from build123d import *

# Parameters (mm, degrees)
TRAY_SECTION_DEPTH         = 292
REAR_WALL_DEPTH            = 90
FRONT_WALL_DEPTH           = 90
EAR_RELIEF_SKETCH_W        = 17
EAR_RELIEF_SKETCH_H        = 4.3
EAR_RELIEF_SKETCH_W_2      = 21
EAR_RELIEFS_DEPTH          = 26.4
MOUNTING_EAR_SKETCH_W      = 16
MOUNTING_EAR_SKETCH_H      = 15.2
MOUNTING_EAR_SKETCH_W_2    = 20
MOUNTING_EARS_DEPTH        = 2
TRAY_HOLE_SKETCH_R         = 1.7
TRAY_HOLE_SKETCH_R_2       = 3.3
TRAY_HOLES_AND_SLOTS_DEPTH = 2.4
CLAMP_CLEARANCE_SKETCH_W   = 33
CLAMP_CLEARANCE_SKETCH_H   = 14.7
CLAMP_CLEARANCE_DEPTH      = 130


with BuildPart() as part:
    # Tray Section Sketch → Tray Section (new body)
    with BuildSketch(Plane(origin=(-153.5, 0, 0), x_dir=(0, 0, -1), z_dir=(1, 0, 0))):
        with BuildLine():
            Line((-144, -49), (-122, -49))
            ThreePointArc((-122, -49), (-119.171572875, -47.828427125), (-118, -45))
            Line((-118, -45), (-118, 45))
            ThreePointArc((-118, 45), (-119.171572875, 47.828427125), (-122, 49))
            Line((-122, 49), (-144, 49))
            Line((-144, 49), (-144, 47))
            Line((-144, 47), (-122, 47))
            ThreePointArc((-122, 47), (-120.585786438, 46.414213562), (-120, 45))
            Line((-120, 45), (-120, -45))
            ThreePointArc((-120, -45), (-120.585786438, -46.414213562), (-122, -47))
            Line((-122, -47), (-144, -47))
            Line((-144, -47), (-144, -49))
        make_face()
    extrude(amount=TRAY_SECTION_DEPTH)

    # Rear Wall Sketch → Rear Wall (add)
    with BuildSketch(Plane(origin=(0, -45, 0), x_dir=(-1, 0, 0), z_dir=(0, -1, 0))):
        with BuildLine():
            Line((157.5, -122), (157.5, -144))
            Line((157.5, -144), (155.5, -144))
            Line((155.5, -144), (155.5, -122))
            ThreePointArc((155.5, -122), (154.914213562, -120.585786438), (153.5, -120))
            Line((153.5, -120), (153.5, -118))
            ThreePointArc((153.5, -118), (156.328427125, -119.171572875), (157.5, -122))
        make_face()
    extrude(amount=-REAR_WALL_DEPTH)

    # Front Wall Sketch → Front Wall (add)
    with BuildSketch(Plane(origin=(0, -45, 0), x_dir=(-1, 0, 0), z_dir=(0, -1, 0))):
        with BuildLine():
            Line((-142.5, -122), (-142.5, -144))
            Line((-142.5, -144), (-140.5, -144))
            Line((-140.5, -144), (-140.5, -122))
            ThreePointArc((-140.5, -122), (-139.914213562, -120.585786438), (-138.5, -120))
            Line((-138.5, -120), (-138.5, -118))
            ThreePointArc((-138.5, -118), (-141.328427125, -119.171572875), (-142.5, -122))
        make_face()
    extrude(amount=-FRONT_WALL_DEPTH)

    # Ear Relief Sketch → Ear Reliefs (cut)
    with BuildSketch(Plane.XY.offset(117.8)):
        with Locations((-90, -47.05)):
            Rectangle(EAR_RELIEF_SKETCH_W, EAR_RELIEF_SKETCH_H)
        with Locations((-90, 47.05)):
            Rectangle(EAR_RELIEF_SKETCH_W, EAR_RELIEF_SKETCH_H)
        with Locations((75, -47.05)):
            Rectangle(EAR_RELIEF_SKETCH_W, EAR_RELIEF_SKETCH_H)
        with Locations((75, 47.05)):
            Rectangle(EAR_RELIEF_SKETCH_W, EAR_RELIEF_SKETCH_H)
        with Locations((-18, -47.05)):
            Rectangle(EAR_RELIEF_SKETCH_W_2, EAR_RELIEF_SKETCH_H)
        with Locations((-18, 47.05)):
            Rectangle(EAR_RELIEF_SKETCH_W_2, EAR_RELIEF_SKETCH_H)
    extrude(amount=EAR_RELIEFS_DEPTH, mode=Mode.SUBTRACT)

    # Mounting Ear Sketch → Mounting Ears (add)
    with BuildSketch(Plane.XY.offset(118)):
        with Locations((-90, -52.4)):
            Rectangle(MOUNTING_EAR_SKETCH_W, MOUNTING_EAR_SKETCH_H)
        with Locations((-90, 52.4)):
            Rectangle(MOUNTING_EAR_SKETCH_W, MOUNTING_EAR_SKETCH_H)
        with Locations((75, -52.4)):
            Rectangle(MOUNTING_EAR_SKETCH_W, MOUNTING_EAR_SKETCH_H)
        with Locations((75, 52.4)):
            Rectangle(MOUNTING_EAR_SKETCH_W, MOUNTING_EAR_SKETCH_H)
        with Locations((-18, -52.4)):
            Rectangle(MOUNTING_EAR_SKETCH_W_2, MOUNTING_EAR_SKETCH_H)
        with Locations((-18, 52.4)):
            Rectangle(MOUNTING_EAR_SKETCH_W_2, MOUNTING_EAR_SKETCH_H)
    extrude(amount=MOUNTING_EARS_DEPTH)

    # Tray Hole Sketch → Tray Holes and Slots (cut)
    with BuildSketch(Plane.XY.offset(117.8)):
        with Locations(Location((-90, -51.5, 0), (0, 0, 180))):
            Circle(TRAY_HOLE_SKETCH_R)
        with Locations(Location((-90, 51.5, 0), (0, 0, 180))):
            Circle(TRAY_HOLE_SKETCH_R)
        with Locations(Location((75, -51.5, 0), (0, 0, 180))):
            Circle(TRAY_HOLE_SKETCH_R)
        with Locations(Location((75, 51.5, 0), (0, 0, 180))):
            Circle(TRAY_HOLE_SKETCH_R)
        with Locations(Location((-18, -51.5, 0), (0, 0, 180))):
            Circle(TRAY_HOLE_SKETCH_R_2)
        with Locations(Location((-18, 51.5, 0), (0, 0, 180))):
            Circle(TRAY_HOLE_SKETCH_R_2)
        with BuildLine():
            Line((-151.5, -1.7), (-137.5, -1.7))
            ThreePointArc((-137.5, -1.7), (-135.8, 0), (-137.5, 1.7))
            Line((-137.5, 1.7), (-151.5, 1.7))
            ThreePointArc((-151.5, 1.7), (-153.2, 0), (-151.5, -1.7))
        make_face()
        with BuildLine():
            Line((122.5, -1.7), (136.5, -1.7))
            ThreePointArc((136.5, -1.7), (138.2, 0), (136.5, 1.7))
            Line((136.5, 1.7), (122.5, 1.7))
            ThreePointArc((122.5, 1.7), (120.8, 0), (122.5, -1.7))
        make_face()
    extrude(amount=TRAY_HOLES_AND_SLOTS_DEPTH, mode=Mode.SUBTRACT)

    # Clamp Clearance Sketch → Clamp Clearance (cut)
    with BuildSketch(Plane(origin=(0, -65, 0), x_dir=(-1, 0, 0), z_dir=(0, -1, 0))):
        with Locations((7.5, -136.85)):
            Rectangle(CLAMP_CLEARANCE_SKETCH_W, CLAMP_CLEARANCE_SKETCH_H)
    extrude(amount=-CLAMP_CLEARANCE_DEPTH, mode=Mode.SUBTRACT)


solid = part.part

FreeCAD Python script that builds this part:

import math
import FreeCAD as App
import Part
import Sketcher
from FreeCAD import Vector

doc = App.newDocument("Part")
body = doc.addObject("PartDesign::Body", "Body")

sketch1 = body.newObject("Sketcher::SketchObject", "Sketch")
sketch1.AttachmentSupport = (doc.getObject("YZ_Plane"), [""])
sketch1.MapMode = "FlatFace"
sketch1.AttachmentOffset = App.Placement(Vector(0, 0, -153.5), App.Rotation())
sketch1.addGeometry(Part.LineSegment(Vector(-49, 144, 0), Vector(-49, 122, 0)), False)
sketch1.addGeometry(Part.ArcOfCircle(Part.Circle(Vector(-45, 122, 0), Vector(0, 0, 1), 4), math.radians(180), math.radians(270)), False)
sketch1.addGeometry(Part.LineSegment(Vector(-45, 118, 0), Vector(45, 118, 0)), False)
sketch1.addGeometry(Part.ArcOfCircle(Part.Circle(Vector(45, 122, 0), Vector(0, 0, 1), 4), math.radians(-90), math.radians(0)), False)
sketch1.addGeometry(Part.LineSegment(Vector(49, 122, 0), Vector(49, 144, 0)), False)
sketch1.addGeometry(Part.LineSegment(Vector(49, 144, 0), Vector(47, 144, 0)), False)
sketch1.addGeometry(Part.LineSegment(Vector(47, 144, 0), Vector(47, 122, 0)), False)
sketch1.addGeometry(Part.ArcOfCircle(Part.Circle(Vector(45, 122, 0), Vector(0, 0, 1), 2), math.radians(-90), math.radians(0)), False)
sketch1.addGeometry(Part.LineSegment(Vector(45, 120, 0), Vector(-45, 120, 0)), False)
sketch1.addGeometry(Part.ArcOfCircle(Part.Circle(Vector(-45, 122, 0), Vector(0, 0, 1), 2), math.radians(-180), math.radians(-90)), False)
sketch1.addGeometry(Part.LineSegment(Vector(-47, 122, 0), Vector(-47, 144, 0)), False)
sketch1.addGeometry(Part.LineSegment(Vector(-47, 144, 0), Vector(-49, 144, 0)), False)
sketch1.addConstraint(Sketcher.Constraint("Tangent", 0, 2, 1, 1))
sketch1.addConstraint(Sketcher.Constraint("Tangent", 1, 2, 2, 1))
sketch1.addConstraint(Sketcher.Constraint("Tangent", 2, 2, 3, 1))
sketch1.addConstraint(Sketcher.Constraint("Tangent", 3, 2, 4, 1))
sketch1.addConstraint(Sketcher.Constraint("Coincident", 4, 2, 5, 1))
sketch1.addConstraint(Sketcher.Constraint("Coincident", 5, 2, 6, 1))
sketch1.addConstraint(Sketcher.Constraint("Tangent", 6, 2, 7, 2))
sketch1.addConstraint(Sketcher.Constraint("Tangent", 7, 1, 8, 1))
sketch1.addConstraint(Sketcher.Constraint("Tangent", 8, 2, 9, 2))
sketch1.addConstraint(Sketcher.Constraint("Tangent", 9, 1, 10, 1))
sketch1.addConstraint(Sketcher.Constraint("Coincident", 10, 2, 11, 1))
sketch1.addConstraint(Sketcher.Constraint("Coincident", 11, 2, 0, 1))
sketch1.addConstraint(Sketcher.Constraint("Vertical", 0))
sketch1.addConstraint(Sketcher.Constraint("Horizontal", 2))
sketch1.addConstraint(Sketcher.Constraint("Vertical", 4))
sketch1.addConstraint(Sketcher.Constraint("Horizontal", 5))
sketch1.addConstraint(Sketcher.Constraint("Vertical", 6))
sketch1.addConstraint(Sketcher.Constraint("Horizontal", 8))
sketch1.addConstraint(Sketcher.Constraint("Vertical", 10))
sketch1.addConstraint(Sketcher.Constraint("Horizontal", 11))
sketch1.addConstraint(Sketcher.Constraint("Coincident", 7, 3, 3, 3))
sketch1.addConstraint(Sketcher.Constraint("Coincident", 9, 3, 1, 3))
sketch1.addConstraint(Sketcher.Constraint("Equal", 1, 3))
sketch1.addConstraint(Sketcher.Constraint("Symmetric", 5, 2, 10, 2, -2))
sketch1.addConstraint(Sketcher.Constraint("Radius", 1, 4.0))
sketch1.addConstraint(Sketcher.Constraint("Radius", 7, 2.0))
sketch1.addConstraint(Sketcher.Constraint("DistanceX", 2, 1, 2, 2, 90.0))
sketch1.addConstraint(Sketcher.Constraint("DistanceY", 0, 2, 0, 1, 22.0))
sketch1.addConstraint(Sketcher.Constraint("DistanceY", -1, 1, 1, 3, 122.0))
pad1 = body.newObject("PartDesign::Pad", "Pad")
pad1.Profile = sketch1
pad1.Length = 292

sketch2 = body.newObject("Sketcher::SketchObject", "Sketch001")
sketch2.AttachmentSupport = (doc.getObject("XZ_Plane"), [""])
sketch2.MapMode = "FlatFace"
sketch2.AttachmentOffset = App.Placement(Vector(0, 0, 45), App.Rotation())
sketch2.addGeometry(Part.LineSegment(Vector(-157.5, 144, 0), Vector(-157.5, 122, 0)), False)
sketch2.addGeometry(Part.ArcOfCircle(Part.Circle(Vector(-153.5, 122, 0), Vector(0, 0, 1), 4), math.radians(180), math.radians(270)), False)
sketch2.addGeometry(Part.LineSegment(Vector(-153.5, 118, 0), Vector(-153.5, 120, 0)), False)
sketch2.addGeometry(Part.ArcOfCircle(Part.Circle(Vector(-153.5, 122, 0), Vector(0, 0, 1), 2), math.radians(-180), math.radians(-90)), False)
sketch2.addGeometry(Part.LineSegment(Vector(-155.5, 122, 0), Vector(-155.5, 144, 0)), False)
sketch2.addGeometry(Part.LineSegment(Vector(-155.5, 144, 0), Vector(-157.5, 144, 0)), False)
sketch2.addConstraint(Sketcher.Constraint("Tangent", 0, 2, 1, 1))
sketch2.addConstraint(Sketcher.Constraint("Coincident", 1, 2, 2, 1))
sketch2.addConstraint(Sketcher.Constraint("Coincident", 2, 2, 3, 2))
sketch2.addConstraint(Sketcher.Constraint("Tangent", 3, 1, 4, 1))
sketch2.addConstraint(Sketcher.Constraint("Coincident", 4, 2, 5, 1))
sketch2.addConstraint(Sketcher.Constraint("Coincident", 5, 2, 0, 1))
sketch2.addConstraint(Sketcher.Constraint("Vertical", 0))
sketch2.addConstraint(Sketcher.Constraint("Vertical", 2))
sketch2.addConstraint(Sketcher.Constraint("Vertical", 4))
sketch2.addConstraint(Sketcher.Constraint("Horizontal", 5))
sketch2.addConstraint(Sketcher.Constraint("Coincident", 3, 3, 1, 3))
sketch2.addConstraint(Sketcher.Constraint("Vertical", 3, 3, 1, 2))
sketch2.addConstraint(Sketcher.Constraint("Radius", 1, 4.0))
sketch2.addConstraint(Sketcher.Constraint("Radius", 3, 2.0))
sketch2.addConstraint(Sketcher.Constraint("DistanceY", 0, 2, 0, 1, 22.0))
sketch2.addConstraint(Sketcher.Constraint("DistanceY", -1, 1, 1, 3, 122.0))
sketch2.addConstraint(Sketcher.Constraint("DistanceX", 1, 3, -1, 1, 153.5))
pad2 = body.newObject("PartDesign::Pad", "Pad001")
pad2.Profile = sketch2
pad2.Length = 90
pad2.Reversed = True

sketch3 = body.newObject("Sketcher::SketchObject", "Sketch002")
sketch3.AttachmentSupport = (doc.getObject("XZ_Plane"), [""])
sketch3.MapMode = "FlatFace"
sketch3.AttachmentOffset = App.Placement(Vector(0, 0, 45), App.Rotation())
sketch3.addGeometry(Part.LineSegment(Vector(142.5, 122, 0), Vector(142.5, 144, 0)), False)
sketch3.addGeometry(Part.LineSegment(Vector(142.5, 144, 0), Vector(140.5, 144, 0)), False)
sketch3.addGeometry(Part.LineSegment(Vector(140.5, 144, 0), Vector(140.5, 122, 0)), False)
sketch3.addGeometry(Part.ArcOfCircle(Part.Circle(Vector(138.5, 122, 0), Vector(0, 0, 1), 2), math.radians(-90), math.radians(0)), False)
sketch3.addGeometry(Part.LineSegment(Vector(138.5, 120, 0), Vector(138.5, 118, 0)), False)
sketch3.addGeometry(Part.ArcOfCircle(Part.Circle(Vector(138.5, 122, 0), Vector(0, 0, 1), 4), math.radians(-90), math.radians(0)), False)
sketch3.addConstraint(Sketcher.Constraint("Coincident", 0, 2, 1, 1))
sketch3.addConstraint(Sketcher.Constraint("Coincident", 1, 2, 2, 1))
sketch3.addConstraint(Sketcher.Constraint("Tangent", 2, 2, 3, 2))
sketch3.addConstraint(Sketcher.Constraint("Coincident", 3, 1, 4, 1))
sketch3.addConstraint(Sketcher.Constraint("Coincident", 4, 2, 5, 1))
sketch3.addConstraint(Sketcher.Constraint("Tangent", 5, 2, 0, 1))
sketch3.addConstraint(Sketcher.Constraint("Vertical", 0))
sketch3.addConstraint(Sketcher.Constraint("Horizontal", 1))
sketch3.addConstraint(Sketcher.Constraint("Vertical", 2))
sketch3.addConstraint(Sketcher.Constraint("Vertical", 4))
sketch3.addConstraint(Sketcher.Constraint("Coincident", 5, 3, 3, 3))
sketch3.addConstraint(Sketcher.Constraint("Vertical", 5, 3, 3, 1))
sketch3.addConstraint(Sketcher.Constraint("Radius", 3, 2.0))
sketch3.addConstraint(Sketcher.Constraint("Radius", 5, 4.0))
sketch3.addConstraint(Sketcher.Constraint("DistanceY", 0, 1, 0, 2, 22.0))
sketch3.addConstraint(Sketcher.Constraint("DistanceY", -1, 1, 3, 3, 122.0))
sketch3.addConstraint(Sketcher.Constraint("DistanceX", -1, 1, 3, 3, 138.5))
pad3 = body.newObject("PartDesign::Pad", "Pad002")
pad3.Profile = sketch3
pad3.Length = 90
pad3.Reversed = True

sketch4 = body.newObject("Sketcher::SketchObject", "Sketch003")
sketch4.AttachmentSupport = (doc.getObject("XY_Plane"), [""])
sketch4.MapMode = "FlatFace"
sketch4.AttachmentOffset = App.Placement(Vector(0, 0, 117.8), App.Rotation())
sketch4.addGeometry(Part.LineSegment(Vector(-98.5, -44.9, 0), Vector(-98.5, -49.2, 0)), False)
sketch4.addGeometry(Part.LineSegment(Vector(-98.5, -49.2, 0), Vector(-81.5, -49.2, 0)), False)
sketch4.addGeometry(Part.LineSegment(Vector(-81.5, -49.2, 0), Vector(-81.5, -44.9, 0)), False)
sketch4.addGeometry(Part.LineSegment(Vector(-81.5, -44.9, 0), Vector(-98.5, -44.9, 0)), False)
sketch4.addGeometry(Part.LineSegment(Vector(-98.5, 49.2, 0), Vector(-98.5, 44.9, 0)), False)
sketch4.addGeometry(Part.LineSegment(Vector(-98.5, 44.9, 0), Vector(-81.5, 44.9, 0)), False)
sketch4.addGeometry(Part.LineSegment(Vector(-81.5, 44.9, 0), Vector(-81.5, 49.2, 0)), False)
sketch4.addGeometry(Part.LineSegment(Vector(-81.5, 49.2, 0), Vector(-98.5, 49.2, 0)), False)
sketch4.addGeometry(Part.LineSegment(Vector(66.5, -44.9, 0), Vector(66.5, -49.2, 0)), False)
sketch4.addGeometry(Part.LineSegment(Vector(66.5, -49.2, 0), Vector(83.5, -49.2, 0)), False)
sketch4.addGeometry(Part.LineSegment(Vector(83.5, -49.2, 0), Vector(83.5, -44.9, 0)), False)
sketch4.addGeometry(Part.LineSegment(Vector(83.5, -44.9, 0), Vector(66.5, -44.9, 0)), False)
sketch4.addGeometry(Part.LineSegment(Vector(66.5, 49.2, 0), Vector(66.5, 44.9, 0)), False)
sketch4.addGeometry(Part.LineSegment(Vector(66.5, 44.9, 0), Vector(83.5, 44.9, 0)), False)
sketch4.addGeometry(Part.LineSegment(Vector(83.5, 44.9, 0), Vector(83.5, 49.2, 0)), False)
sketch4.addGeometry(Part.LineSegment(Vector(83.5, 49.2, 0), Vector(66.5, 49.2, 0)), False)
sketch4.addGeometry(Part.LineSegment(Vector(-28.5, -44.9, 0), Vector(-28.5, -49.2, 0)), False)
sketch4.addGeometry(Part.LineSegment(Vector(-28.5, -49.2, 0), Vector(-7.5, -49.2, 0)), False)
sketch4.addGeometry(Part.LineSegment(Vector(-7.5, -49.2, 0), Vector(-7.5, -44.9, 0)), False)
sketch4.addGeometry(Part.LineSegment(Vector(-7.5, -44.9, 0), Vector(-28.5, -44.9, 0)), False)
sketch4.addGeometry(Part.LineSegment(Vector(-28.5, 49.2, 0), Vector(-28.5, 44.9, 0)), False)
sketch4.addGeometry(Part.LineSegment(Vector(-28.5, 44.9, 0), Vector(-7.5, 44.9, 0)), False)
sketch4.addGeometry(Part.LineSegment(Vector(-7.5, 44.9, 0), Vector(-7.5, 49.2, 0)), False)
sketch4.addGeometry(Part.LineSegment(Vector(-7.5, 49.2, 0), Vector(-28.5, 49.2, 0)), False)
sketch4.addConstraint(Sketcher.Constraint("Coincident", 0, 2, 1, 1))
sketch4.addConstraint(Sketcher.Constraint("Coincident", 1, 2, 2, 1))
sketch4.addConstraint(Sketcher.Constraint("Coincident", 2, 2, 3, 1))
sketch4.addConstraint(Sketcher.Constraint("Coincident", 3, 2, 0, 1))
sketch4.addConstraint(Sketcher.Constraint("Coincident", 4, 2, 5, 1))
sketch4.addConstraint(Sketcher.Constraint("Coincident", 5, 2, 6, 1))
sketch4.addConstraint(Sketcher.Constraint("Coincident", 6, 2, 7, 1))
sketch4.addConstraint(Sketcher.Constraint("Coincident", 7, 2, 4, 1))
sketch4.addConstraint(Sketcher.Constraint("Coincident", 8, 2, 9, 1))
sketch4.addConstraint(Sketcher.Constraint("Coincident", 9, 2, 10, 1))
sketch4.addConstraint(Sketcher.Constraint("Coincident", 10, 2, 11, 1))
sketch4.addConstraint(Sketcher.Constraint("Coincident", 11, 2, 8, 1))
sketch4.addConstraint(Sketcher.Constraint("Coincident", 12, 2, 13, 1))
sketch4.addConstraint(Sketcher.Constraint("Coincident", 13, 2, 14, 1))
sketch4.addConstraint(Sketcher.Constraint("Coincident", 14, 2, 15, 1))
sketch4.addConstraint(Sketcher.Constraint("Coincident", 15, 2, 12, 1))
sketch4.addConstraint(Sketcher.Constraint("Coincident", 16, 2, 17, 1))
sketch4.addConstraint(Sketcher.Constraint("Coincident", 17, 2, 18, 1))
sketch4.addConstraint(Sketcher.Constraint("Coincident", 18, 2, 19, 1))
sketch4.addConstraint(Sketcher.Constraint("Coincident", 19, 2, 16, 1))
sketch4.addConstraint(Sketcher.Constraint("Coincident", 20, 2, 21, 1))
sketch4.addConstraint(Sketcher.Constraint("Coincident", 21, 2, 22, 1))
sketch4.addConstraint(Sketcher.Constraint("Coincident", 22, 2, 23, 1))
sketch4.addConstraint(Sketcher.Constraint("Coincident", 23, 2, 20, 1))
sketch4.addConstraint(Sketcher.Constraint("Vertical", 0))
sketch4.addConstraint(Sketcher.Constraint("Horizontal", 1))
sketch4.addConstraint(Sketcher.Constraint("Vertical", 2))
sketch4.addConstraint(Sketcher.Constraint("Horizontal", 3))
sketch4.addConstraint(Sketcher.Constraint("Vertical", 4))
sketch4.addConstraint(Sketcher.Constraint("Horizontal", 5))
sketch4.addConstraint(Sketcher.Constraint("Vertical", 6))
sketch4.addConstraint(Sketcher.Constraint("Horizontal", 7))
sketch4.addConstraint(Sketcher.Constraint("Vertical", 8))
sketch4.addConstraint(Sketcher.Constraint("Horizontal", 9))
sketch4.addConstraint(Sketcher.Constraint("Vertical", 10))
sketch4.addConstraint(Sketcher.Constraint("Horizontal", 11))
sketch4.addConstraint(Sketcher.Constraint("Vertical", 12))
sketch4.addConstraint(Sketcher.Constraint("Horizontal", 13))
sketch4.addConstraint(Sketcher.Constraint("Vertical", 14))
sketch4.addConstraint(Sketcher.Constraint("Horizontal", 15))
sketch4.addConstraint(Sketcher.Constraint("Vertical", 16))
sketch4.addConstraint(Sketcher.Constraint("Horizontal", 17))
sketch4.addConstraint(Sketcher.Constraint("Vertical", 18))
sketch4.addConstraint(Sketcher.Constraint("Horizontal", 19))
sketch4.addConstraint(Sketcher.Constraint("Vertical", 20))
sketch4.addConstraint(Sketcher.Constraint("Horizontal", 21))
sketch4.addConstraint(Sketcher.Constraint("Vertical", 22))
sketch4.addConstraint(Sketcher.Constraint("Horizontal", 23))
sketch4.addConstraint(Sketcher.Constraint("Symmetric", 3, 2, 4, 2, -1))
sketch4.addConstraint(Sketcher.Constraint("Symmetric", 1, 2, 6, 2, -1))
sketch4.addConstraint(Sketcher.Constraint("Symmetric", 11, 2, 12, 2, -1))
sketch4.addConstraint(Sketcher.Constraint("Symmetric", 9, 2, 14, 2, -1))
sketch4.addConstraint(Sketcher.Constraint("Symmetric", 19, 2, 20, 2, -1))
sketch4.addConstraint(Sketcher.Constraint("Symmetric", 17, 2, 22, 2, -1))
sketch4.addConstraint(Sketcher.Constraint("Horizontal", 1, 2, 8, 2))
sketch4.addConstraint(Sketcher.Constraint("Horizontal", 3, 2, 10, 2))
sketch4.addConstraint(Sketcher.Constraint("Horizontal", 9, 2, 16, 2))
sketch4.addConstraint(Sketcher.Constraint("Horizontal", 11, 2, 18, 2))
sketch4.addConstraint(Sketcher.Constraint("Equal", 7, 9))
sketch4.addConstraint(Sketcher.Constraint("DistanceX", 1, 1, 1, 2, 17.0))
sketch4.addConstraint(Sketcher.Constraint("DistanceX", 17, 1, 17, 2, 21.0))
sketch4.addConstraint(Sketcher.Constraint("DistanceY", 0, 2, 0, 1, 4.3))
sketch4.addConstraint(Sketcher.Constraint("DistanceX", 1, 2, 8, 2, 148.0))
sketch4.addConstraint(Sketcher.Constraint("DistanceX", 1, 2, 16, 2, 53.0))
sketch4.addConstraint(Sketcher.Constraint("DistanceX", 0, 2, -1, 1, 98.5))
sketch4.addConstraint(Sketcher.Constraint("DistanceY", 0, 2, -1, 1, 49.2))
pocket1 = body.newObject("PartDesign::Pocket", "Pocket")
pocket1.Profile = sketch4
pocket1.Length = 26.4
pocket1.Reversed = True

sketch5 = body.newObject("Sketcher::SketchObject", "Sketch004")
sketch5.AttachmentSupport = (doc.getObject("XY_Plane"), [""])
sketch5.MapMode = "FlatFace"
sketch5.AttachmentOffset = App.Placement(Vector(0, 0, 118), App.Rotation())
sketch5.addGeometry(Part.LineSegment(Vector(-98, -44.8, 0), Vector(-98, -60, 0)), False)
sketch5.addGeometry(Part.LineSegment(Vector(-98, -60, 0), Vector(-82, -60, 0)), False)
sketch5.addGeometry(Part.LineSegment(Vector(-82, -60, 0), Vector(-82, -44.8, 0)), False)
sketch5.addGeometry(Part.LineSegment(Vector(-82, -44.8, 0), Vector(-98, -44.8, 0)), False)
sketch5.addGeometry(Part.LineSegment(Vector(-98, 60, 0), Vector(-98, 44.8, 0)), False)
sketch5.addGeometry(Part.LineSegment(Vector(-98, 44.8, 0), Vector(-82, 44.8, 0)), False)
sketch5.addGeometry(Part.LineSegment(Vector(-82, 44.8, 0), Vector(-82, 60, 0)), False)
sketch5.addGeometry(Part.LineSegment(Vector(-82, 60, 0), Vector(-98, 60, 0)), False)
sketch5.addGeometry(Part.LineSegment(Vector(67, -44.8, 0), Vector(67, -60, 0)), False)
sketch5.addGeometry(Part.LineSegment(Vector(67, -60, 0), Vector(83, -60, 0)), False)
sketch5.addGeometry(Part.LineSegment(Vector(83, -60, 0), Vector(83, -44.8, 0)), False)
sketch5.addGeometry(Part.LineSegment(Vector(83, -44.8, 0), Vector(67, -44.8, 0)), False)
sketch5.addGeometry(Part.LineSegment(Vector(67, 60, 0), Vector(67, 44.8, 0)), False)
sketch5.addGeometry(Part.LineSegment(Vector(67, 44.8, 0), Vector(83, 44.8, 0)), False)
sketch5.addGeometry(Part.LineSegment(Vector(83, 44.8, 0), Vector(83, 60, 0)), False)
sketch5.addGeometry(Part.LineSegment(Vector(83, 60, 0), Vector(67, 60, 0)), False)
sketch5.addGeometry(Part.LineSegment(Vector(-28, -44.8, 0), Vector(-28, -60, 0)), False)
sketch5.addGeometry(Part.LineSegment(Vector(-28, -60, 0), Vector(-8, -60, 0)), False)
sketch5.addGeometry(Part.LineSegment(Vector(-8, -60, 0), Vector(-8, -44.8, 0)), False)
sketch5.addGeometry(Part.LineSegment(Vector(-8, -44.8, 0), Vector(-28, -44.8, 0)), False)
sketch5.addGeometry(Part.LineSegment(Vector(-28, 60, 0), Vector(-28, 44.8, 0)), False)
sketch5.addGeometry(Part.LineSegment(Vector(-28, 44.8, 0), Vector(-8, 44.8, 0)), False)
sketch5.addGeometry(Part.LineSegment(Vector(-8, 44.8, 0), Vector(-8, 60, 0)), False)
sketch5.addGeometry(Part.LineSegment(Vector(-8, 60, 0), Vector(-28, 60, 0)), False)
sketch5.addConstraint(Sketcher.Constraint("Coincident", 0, 2, 1, 1))
sketch5.addConstraint(Sketcher.Constraint("Coincident", 1, 2, 2, 1))
sketch5.addConstraint(Sketcher.Constraint("Coincident", 2, 2, 3, 1))
sketch5.addConstraint(Sketcher.Constraint("Coincident", 3, 2, 0, 1))
sketch5.addConstraint(Sketcher.Constraint("Coincident", 4, 2, 5, 1))
sketch5.addConstraint(Sketcher.Constraint("Coincident", 5, 2, 6, 1))
sketch5.addConstraint(Sketcher.Constraint("Coincident", 6, 2, 7, 1))
sketch5.addConstraint(Sketcher.Constraint("Coincident", 7, 2, 4, 1))
sketch5.addConstraint(Sketcher.Constraint("Coincident", 8, 2, 9, 1))
sketch5.addConstraint(Sketcher.Constraint("Coincident", 9, 2, 10, 1))
sketch5.addConstraint(Sketcher.Constraint("Coincident", 10, 2, 11, 1))
sketch5.addConstraint(Sketcher.Constraint("Coincident", 11, 2, 8, 1))
sketch5.addConstraint(Sketcher.Constraint("Coincident", 12, 2, 13, 1))
sketch5.addConstraint(Sketcher.Constraint("Coincident", 13, 2, 14, 1))
sketch5.addConstraint(Sketcher.Constraint("Coincident", 14, 2, 15, 1))
sketch5.addConstraint(Sketcher.Constraint("Coincident", 15, 2, 12, 1))
sketch5.addConstraint(Sketcher.Constraint("Coincident", 16, 2, 17, 1))
sketch5.addConstraint(Sketcher.Constraint("Coincident", 17, 2, 18, 1))
sketch5.addConstraint(Sketcher.Constraint("Coincident", 18, 2, 19, 1))
sketch5.addConstraint(Sketcher.Constraint("Coincident", 19, 2, 16, 1))
sketch5.addConstraint(Sketcher.Constraint("Coincident", 20, 2, 21, 1))
sketch5.addConstraint(Sketcher.Constraint("Coincident", 21, 2, 22, 1))
sketch5.addConstraint(Sketcher.Constraint("Coincident", 22, 2, 23, 1))
sketch5.addConstraint(Sketcher.Constraint("Coincident", 23, 2, 20, 1))
sketch5.addConstraint(Sketcher.Constraint("Vertical", 0))
sketch5.addConstraint(Sketcher.Constraint("Horizontal", 1))
sketch5.addConstraint(Sketcher.Constraint("Vertical", 2))
sketch5.addConstraint(Sketcher.Constraint("Horizontal", 3))
sketch5.addConstraint(Sketcher.Constraint("Vertical", 4))
sketch5.addConstraint(Sketcher.Constraint("Horizontal", 5))
sketch5.addConstraint(Sketcher.Constraint("Vertical", 6))
sketch5.addConstraint(Sketcher.Constraint("Horizontal", 7))
sketch5.addConstraint(Sketcher.Constraint("Vertical", 8))
sketch5.addConstraint(Sketcher.Constraint("Horizontal", 9))
sketch5.addConstraint(Sketcher.Constraint("Vertical", 10))
sketch5.addConstraint(Sketcher.Constraint("Horizontal", 11))
sketch5.addConstraint(Sketcher.Constraint("Vertical", 12))
sketch5.addConstraint(Sketcher.Constraint("Horizontal", 13))
sketch5.addConstraint(Sketcher.Constraint("Vertical", 14))
sketch5.addConstraint(Sketcher.Constraint("Horizontal", 15))
sketch5.addConstraint(Sketcher.Constraint("Vertical", 16))
sketch5.addConstraint(Sketcher.Constraint("Horizontal", 17))
sketch5.addConstraint(Sketcher.Constraint("Vertical", 18))
sketch5.addConstraint(Sketcher.Constraint("Horizontal", 19))
sketch5.addConstraint(Sketcher.Constraint("Vertical", 20))
sketch5.addConstraint(Sketcher.Constraint("Horizontal", 21))
sketch5.addConstraint(Sketcher.Constraint("Vertical", 22))
sketch5.addConstraint(Sketcher.Constraint("Horizontal", 23))
sketch5.addConstraint(Sketcher.Constraint("Symmetric", 3, 2, 4, 2, -1))
sketch5.addConstraint(Sketcher.Constraint("Symmetric", 1, 2, 6, 2, -1))
sketch5.addConstraint(Sketcher.Constraint("Symmetric", 11, 2, 12, 2, -1))
sketch5.addConstraint(Sketcher.Constraint("Symmetric", 9, 2, 14, 2, -1))
sketch5.addConstraint(Sketcher.Constraint("Symmetric", 19, 2, 20, 2, -1))
sketch5.addConstraint(Sketcher.Constraint("Symmetric", 17, 2, 22, 2, -1))
sketch5.addConstraint(Sketcher.Constraint("Horizontal", 1, 2, 8, 2))
sketch5.addConstraint(Sketcher.Constraint("Horizontal", 3, 2, 10, 2))
sketch5.addConstraint(Sketcher.Constraint("Horizontal", 9, 2, 16, 2))
sketch5.addConstraint(Sketcher.Constraint("Horizontal", 11, 2, 18, 2))
sketch5.addConstraint(Sketcher.Constraint("Equal", 7, 9))
sketch5.addConstraint(Sketcher.Constraint("DistanceX", 1, 1, 1, 2, 16.0))
sketch5.addConstraint(Sketcher.Constraint("DistanceX", 17, 1, 17, 2, 20.0))
sketch5.addConstraint(Sketcher.Constraint("DistanceY", 0, 2, 0, 1, 15.2))
sketch5.addConstraint(Sketcher.Constraint("DistanceX", 0, 2, -1, 1, 98.0))
sketch5.addConstraint(Sketcher.Constraint("DistanceY", 0, 2, -1, 1, 60.0))
sketch5.addConstraint(Sketcher.Constraint("DistanceX", -1, 1, 8, 2, 67.0))
sketch5.addConstraint(Sketcher.Constraint("DistanceX", 16, 2, -1, 1, 28.0))
pad4 = body.newObject("PartDesign::Pad", "Pad003")
pad4.Profile = sketch5
pad4.Length = 2

sketch6 = body.newObject("Sketcher::SketchObject", "Sketch005")
sketch6.AttachmentSupport = (doc.getObject("XY_Plane"), [""])
sketch6.MapMode = "FlatFace"
sketch6.AttachmentOffset = App.Placement(Vector(0, 0, 117.8), App.Rotation())
sketch6.addGeometry(Part.Circle(Vector(-90, -51.5, 0), Vector(0, 0, 1), 1.7), False)
sketch6.addGeometry(Part.Circle(Vector(-90, 51.5, 0), Vector(0, 0, 1), 1.7), False)
sketch6.addGeometry(Part.Circle(Vector(75, -51.5, 0), Vector(0, 0, 1), 1.7), False)
sketch6.addGeometry(Part.Circle(Vector(75, 51.5, 0), Vector(0, 0, 1), 1.7), False)
sketch6.addGeometry(Part.Circle(Vector(-18, -51.5, 0), Vector(0, 0, 1), 3.3), False)
sketch6.addGeometry(Part.Circle(Vector(-18, 51.5, 0), Vector(0, 0, 1), 3.3), False)
sketch6.addGeometry(Part.LineSegment(Vector(-151.5, -1.7, 0), Vector(-137.5, -1.7, 0)), False)
sketch6.addGeometry(Part.ArcOfCircle(Part.Circle(Vector(-137.5, 0, 0), Vector(0, 0, 1), 1.7), math.radians(-90), math.radians(90)), False)
sketch6.addGeometry(Part.LineSegment(Vector(-137.5, 1.7, 0), Vector(-151.5, 1.7, 0)), False)
sketch6.addGeometry(Part.ArcOfCircle(Part.Circle(Vector(-151.5, 0, 0), Vector(0, 0, 1), 1.7), math.radians(90), math.radians(270)), False)
sketch6.addGeometry(Part.LineSegment(Vector(122.5, -1.7, 0), Vector(136.5, -1.7, 0)), False)
sketch6.addGeometry(Part.ArcOfCircle(Part.Circle(Vector(136.5, 0, 0), Vector(0, 0, 1), 1.7), math.radians(-90), math.radians(90)), False)
sketch6.addGeometry(Part.LineSegment(Vector(136.5, 1.7, 0), Vector(122.5, 1.7, 0)), False)
sketch6.addGeometry(Part.ArcOfCircle(Part.Circle(Vector(122.5, 0, 0), Vector(0, 0, 1), 1.7), math.radians(90), math.radians(270)), False)
sketch6.addConstraint(Sketcher.Constraint("Tangent", 6, 2, 7, 1))
sketch6.addConstraint(Sketcher.Constraint("Tangent", 7, 2, 8, 1))
sketch6.addConstraint(Sketcher.Constraint("Tangent", 8, 2, 9, 1))
sketch6.addConstraint(Sketcher.Constraint("Tangent", 9, 2, 6, 1))
sketch6.addConstraint(Sketcher.Constraint("Tangent", 10, 2, 11, 1))
sketch6.addConstraint(Sketcher.Constraint("Tangent", 11, 2, 12, 1))
sketch6.addConstraint(Sketcher.Constraint("Tangent", 12, 2, 13, 1))
sketch6.addConstraint(Sketcher.Constraint("Tangent", 13, 2, 10, 1))
sketch6.addConstraint(Sketcher.Constraint("Horizontal", 6))
sketch6.addConstraint(Sketcher.Constraint("Horizontal", 8))
sketch6.addConstraint(Sketcher.Constraint("Horizontal", 10))
sketch6.addConstraint(Sketcher.Constraint("Horizontal", 12))
sketch6.addConstraint(Sketcher.Constraint("Equal", 0, 1))
sketch6.addConstraint(Sketcher.Constraint("Equal", 1, 2))
sketch6.addConstraint(Sketcher.Constraint("Equal", 2, 3))
sketch6.addConstraint(Sketcher.Constraint("Equal", 4, 5))
sketch6.addConstraint(Sketcher.Constraint("Equal", 3, 7))
sketch6.addConstraint(Sketcher.Constraint("Equal", 9, 11))
sketch6.addConstraint(Sketcher.Constraint("Symmetric", 0, 3, 1, 3, -1))
sketch6.addConstraint(Sketcher.Constraint("Symmetric", 2, 3, 3, 3, -1))
sketch6.addConstraint(Sketcher.Constraint("Symmetric", 4, 3, 5, 3, -1))
sketch6.addConstraint(Sketcher.Constraint("PointOnObject", 7, 3, -1))
sketch6.addConstraint(Sketcher.Constraint("PointOnObject", 11, 3, -1))
sketch6.addConstraint(Sketcher.Constraint("Horizontal", 0, 3, 2, 3))
sketch6.addConstraint(Sketcher.Constraint("Horizontal", 2, 3, 4, 3))
sketch6.addConstraint(Sketcher.Constraint("Equal", 8, 10))
sketch6.addConstraint(Sketcher.Constraint("Diameter", 0, 3.4))
sketch6.addConstraint(Sketcher.Constraint("Diameter", 4, 6.6))
sketch6.addConstraint(Sketcher.Constraint("DistanceX", 6, 1, 6, 2, 14.0))
sketch6.addConstraint(Sketcher.Constraint("DistanceX", 0, 3, -1, 1, 90.0))
sketch6.addConstraint(Sketcher.Constraint("DistanceX", -1, 1, 2, 3, 75.0))
sketch6.addConstraint(Sketcher.Constraint("DistanceX", 4, 3, -1, 1, 18.0))
sketch6.addConstraint(Sketcher.Constraint("DistanceY", 0, 3, 1, 3, 103.0))
sketch6.addConstraint(Sketcher.Constraint("DistanceX", 7, 3, -1, 1, 137.5))
sketch6.addConstraint(Sketcher.Constraint("DistanceX", -1, 1, 11, 3, 136.5))
pocket2 = body.newObject("PartDesign::Pocket", "Pocket001")
pocket2.Profile = sketch6
pocket2.Length = 2.4
pocket2.Reversed = True

sketch7 = body.newObject("Sketcher::SketchObject", "Sketch006")
sketch7.AttachmentSupport = (doc.getObject("XZ_Plane"), [""])
sketch7.MapMode = "FlatFace"
sketch7.AttachmentOffset = App.Placement(Vector(0, 0, 65), App.Rotation())
sketch7.addGeometry(Part.LineSegment(Vector(9, 129.5, 0), Vector(9, 144.2, 0)), False)
sketch7.addGeometry(Part.LineSegment(Vector(9, 144.2, 0), Vector(-24, 144.2, 0)), False)
sketch7.addGeometry(Part.LineSegment(Vector(-24, 144.2, 0), Vector(-24, 129.5, 0)), False)
sketch7.addGeometry(Part.LineSegment(Vector(-24, 129.5, 0), Vector(9, 129.5, 0)), False)
sketch7.addConstraint(Sketcher.Constraint("Coincident", 0, 2, 1, 1))
sketch7.addConstraint(Sketcher.Constraint("Coincident", 1, 2, 2, 1))
sketch7.addConstraint(Sketcher.Constraint("Coincident", 2, 2, 3, 1))
sketch7.addConstraint(Sketcher.Constraint("Coincident", 3, 2, 0, 1))
sketch7.addConstraint(Sketcher.Constraint("Vertical", 0))
sketch7.addConstraint(Sketcher.Constraint("Horizontal", 1))
sketch7.addConstraint(Sketcher.Constraint("Vertical", 2))
sketch7.addConstraint(Sketcher.Constraint("Horizontal", 3))
sketch7.addConstraint(Sketcher.Constraint("DistanceX", 1, 2, 1, 1, 33.0))
sketch7.addConstraint(Sketcher.Constraint("DistanceY", 0, 1, 0, 2, 14.7))
sketch7.addConstraint(Sketcher.Constraint("DistanceX", -1, 1, 0, 2, 9.0))
sketch7.addConstraint(Sketcher.Constraint("DistanceY", -1, 1, 0, 2, 144.2))
pocket3 = body.newObject("PartDesign::Pocket", "Pocket002")
pocket3.Profile = sketch7
pocket3.Length = 130

doc.recompute()
